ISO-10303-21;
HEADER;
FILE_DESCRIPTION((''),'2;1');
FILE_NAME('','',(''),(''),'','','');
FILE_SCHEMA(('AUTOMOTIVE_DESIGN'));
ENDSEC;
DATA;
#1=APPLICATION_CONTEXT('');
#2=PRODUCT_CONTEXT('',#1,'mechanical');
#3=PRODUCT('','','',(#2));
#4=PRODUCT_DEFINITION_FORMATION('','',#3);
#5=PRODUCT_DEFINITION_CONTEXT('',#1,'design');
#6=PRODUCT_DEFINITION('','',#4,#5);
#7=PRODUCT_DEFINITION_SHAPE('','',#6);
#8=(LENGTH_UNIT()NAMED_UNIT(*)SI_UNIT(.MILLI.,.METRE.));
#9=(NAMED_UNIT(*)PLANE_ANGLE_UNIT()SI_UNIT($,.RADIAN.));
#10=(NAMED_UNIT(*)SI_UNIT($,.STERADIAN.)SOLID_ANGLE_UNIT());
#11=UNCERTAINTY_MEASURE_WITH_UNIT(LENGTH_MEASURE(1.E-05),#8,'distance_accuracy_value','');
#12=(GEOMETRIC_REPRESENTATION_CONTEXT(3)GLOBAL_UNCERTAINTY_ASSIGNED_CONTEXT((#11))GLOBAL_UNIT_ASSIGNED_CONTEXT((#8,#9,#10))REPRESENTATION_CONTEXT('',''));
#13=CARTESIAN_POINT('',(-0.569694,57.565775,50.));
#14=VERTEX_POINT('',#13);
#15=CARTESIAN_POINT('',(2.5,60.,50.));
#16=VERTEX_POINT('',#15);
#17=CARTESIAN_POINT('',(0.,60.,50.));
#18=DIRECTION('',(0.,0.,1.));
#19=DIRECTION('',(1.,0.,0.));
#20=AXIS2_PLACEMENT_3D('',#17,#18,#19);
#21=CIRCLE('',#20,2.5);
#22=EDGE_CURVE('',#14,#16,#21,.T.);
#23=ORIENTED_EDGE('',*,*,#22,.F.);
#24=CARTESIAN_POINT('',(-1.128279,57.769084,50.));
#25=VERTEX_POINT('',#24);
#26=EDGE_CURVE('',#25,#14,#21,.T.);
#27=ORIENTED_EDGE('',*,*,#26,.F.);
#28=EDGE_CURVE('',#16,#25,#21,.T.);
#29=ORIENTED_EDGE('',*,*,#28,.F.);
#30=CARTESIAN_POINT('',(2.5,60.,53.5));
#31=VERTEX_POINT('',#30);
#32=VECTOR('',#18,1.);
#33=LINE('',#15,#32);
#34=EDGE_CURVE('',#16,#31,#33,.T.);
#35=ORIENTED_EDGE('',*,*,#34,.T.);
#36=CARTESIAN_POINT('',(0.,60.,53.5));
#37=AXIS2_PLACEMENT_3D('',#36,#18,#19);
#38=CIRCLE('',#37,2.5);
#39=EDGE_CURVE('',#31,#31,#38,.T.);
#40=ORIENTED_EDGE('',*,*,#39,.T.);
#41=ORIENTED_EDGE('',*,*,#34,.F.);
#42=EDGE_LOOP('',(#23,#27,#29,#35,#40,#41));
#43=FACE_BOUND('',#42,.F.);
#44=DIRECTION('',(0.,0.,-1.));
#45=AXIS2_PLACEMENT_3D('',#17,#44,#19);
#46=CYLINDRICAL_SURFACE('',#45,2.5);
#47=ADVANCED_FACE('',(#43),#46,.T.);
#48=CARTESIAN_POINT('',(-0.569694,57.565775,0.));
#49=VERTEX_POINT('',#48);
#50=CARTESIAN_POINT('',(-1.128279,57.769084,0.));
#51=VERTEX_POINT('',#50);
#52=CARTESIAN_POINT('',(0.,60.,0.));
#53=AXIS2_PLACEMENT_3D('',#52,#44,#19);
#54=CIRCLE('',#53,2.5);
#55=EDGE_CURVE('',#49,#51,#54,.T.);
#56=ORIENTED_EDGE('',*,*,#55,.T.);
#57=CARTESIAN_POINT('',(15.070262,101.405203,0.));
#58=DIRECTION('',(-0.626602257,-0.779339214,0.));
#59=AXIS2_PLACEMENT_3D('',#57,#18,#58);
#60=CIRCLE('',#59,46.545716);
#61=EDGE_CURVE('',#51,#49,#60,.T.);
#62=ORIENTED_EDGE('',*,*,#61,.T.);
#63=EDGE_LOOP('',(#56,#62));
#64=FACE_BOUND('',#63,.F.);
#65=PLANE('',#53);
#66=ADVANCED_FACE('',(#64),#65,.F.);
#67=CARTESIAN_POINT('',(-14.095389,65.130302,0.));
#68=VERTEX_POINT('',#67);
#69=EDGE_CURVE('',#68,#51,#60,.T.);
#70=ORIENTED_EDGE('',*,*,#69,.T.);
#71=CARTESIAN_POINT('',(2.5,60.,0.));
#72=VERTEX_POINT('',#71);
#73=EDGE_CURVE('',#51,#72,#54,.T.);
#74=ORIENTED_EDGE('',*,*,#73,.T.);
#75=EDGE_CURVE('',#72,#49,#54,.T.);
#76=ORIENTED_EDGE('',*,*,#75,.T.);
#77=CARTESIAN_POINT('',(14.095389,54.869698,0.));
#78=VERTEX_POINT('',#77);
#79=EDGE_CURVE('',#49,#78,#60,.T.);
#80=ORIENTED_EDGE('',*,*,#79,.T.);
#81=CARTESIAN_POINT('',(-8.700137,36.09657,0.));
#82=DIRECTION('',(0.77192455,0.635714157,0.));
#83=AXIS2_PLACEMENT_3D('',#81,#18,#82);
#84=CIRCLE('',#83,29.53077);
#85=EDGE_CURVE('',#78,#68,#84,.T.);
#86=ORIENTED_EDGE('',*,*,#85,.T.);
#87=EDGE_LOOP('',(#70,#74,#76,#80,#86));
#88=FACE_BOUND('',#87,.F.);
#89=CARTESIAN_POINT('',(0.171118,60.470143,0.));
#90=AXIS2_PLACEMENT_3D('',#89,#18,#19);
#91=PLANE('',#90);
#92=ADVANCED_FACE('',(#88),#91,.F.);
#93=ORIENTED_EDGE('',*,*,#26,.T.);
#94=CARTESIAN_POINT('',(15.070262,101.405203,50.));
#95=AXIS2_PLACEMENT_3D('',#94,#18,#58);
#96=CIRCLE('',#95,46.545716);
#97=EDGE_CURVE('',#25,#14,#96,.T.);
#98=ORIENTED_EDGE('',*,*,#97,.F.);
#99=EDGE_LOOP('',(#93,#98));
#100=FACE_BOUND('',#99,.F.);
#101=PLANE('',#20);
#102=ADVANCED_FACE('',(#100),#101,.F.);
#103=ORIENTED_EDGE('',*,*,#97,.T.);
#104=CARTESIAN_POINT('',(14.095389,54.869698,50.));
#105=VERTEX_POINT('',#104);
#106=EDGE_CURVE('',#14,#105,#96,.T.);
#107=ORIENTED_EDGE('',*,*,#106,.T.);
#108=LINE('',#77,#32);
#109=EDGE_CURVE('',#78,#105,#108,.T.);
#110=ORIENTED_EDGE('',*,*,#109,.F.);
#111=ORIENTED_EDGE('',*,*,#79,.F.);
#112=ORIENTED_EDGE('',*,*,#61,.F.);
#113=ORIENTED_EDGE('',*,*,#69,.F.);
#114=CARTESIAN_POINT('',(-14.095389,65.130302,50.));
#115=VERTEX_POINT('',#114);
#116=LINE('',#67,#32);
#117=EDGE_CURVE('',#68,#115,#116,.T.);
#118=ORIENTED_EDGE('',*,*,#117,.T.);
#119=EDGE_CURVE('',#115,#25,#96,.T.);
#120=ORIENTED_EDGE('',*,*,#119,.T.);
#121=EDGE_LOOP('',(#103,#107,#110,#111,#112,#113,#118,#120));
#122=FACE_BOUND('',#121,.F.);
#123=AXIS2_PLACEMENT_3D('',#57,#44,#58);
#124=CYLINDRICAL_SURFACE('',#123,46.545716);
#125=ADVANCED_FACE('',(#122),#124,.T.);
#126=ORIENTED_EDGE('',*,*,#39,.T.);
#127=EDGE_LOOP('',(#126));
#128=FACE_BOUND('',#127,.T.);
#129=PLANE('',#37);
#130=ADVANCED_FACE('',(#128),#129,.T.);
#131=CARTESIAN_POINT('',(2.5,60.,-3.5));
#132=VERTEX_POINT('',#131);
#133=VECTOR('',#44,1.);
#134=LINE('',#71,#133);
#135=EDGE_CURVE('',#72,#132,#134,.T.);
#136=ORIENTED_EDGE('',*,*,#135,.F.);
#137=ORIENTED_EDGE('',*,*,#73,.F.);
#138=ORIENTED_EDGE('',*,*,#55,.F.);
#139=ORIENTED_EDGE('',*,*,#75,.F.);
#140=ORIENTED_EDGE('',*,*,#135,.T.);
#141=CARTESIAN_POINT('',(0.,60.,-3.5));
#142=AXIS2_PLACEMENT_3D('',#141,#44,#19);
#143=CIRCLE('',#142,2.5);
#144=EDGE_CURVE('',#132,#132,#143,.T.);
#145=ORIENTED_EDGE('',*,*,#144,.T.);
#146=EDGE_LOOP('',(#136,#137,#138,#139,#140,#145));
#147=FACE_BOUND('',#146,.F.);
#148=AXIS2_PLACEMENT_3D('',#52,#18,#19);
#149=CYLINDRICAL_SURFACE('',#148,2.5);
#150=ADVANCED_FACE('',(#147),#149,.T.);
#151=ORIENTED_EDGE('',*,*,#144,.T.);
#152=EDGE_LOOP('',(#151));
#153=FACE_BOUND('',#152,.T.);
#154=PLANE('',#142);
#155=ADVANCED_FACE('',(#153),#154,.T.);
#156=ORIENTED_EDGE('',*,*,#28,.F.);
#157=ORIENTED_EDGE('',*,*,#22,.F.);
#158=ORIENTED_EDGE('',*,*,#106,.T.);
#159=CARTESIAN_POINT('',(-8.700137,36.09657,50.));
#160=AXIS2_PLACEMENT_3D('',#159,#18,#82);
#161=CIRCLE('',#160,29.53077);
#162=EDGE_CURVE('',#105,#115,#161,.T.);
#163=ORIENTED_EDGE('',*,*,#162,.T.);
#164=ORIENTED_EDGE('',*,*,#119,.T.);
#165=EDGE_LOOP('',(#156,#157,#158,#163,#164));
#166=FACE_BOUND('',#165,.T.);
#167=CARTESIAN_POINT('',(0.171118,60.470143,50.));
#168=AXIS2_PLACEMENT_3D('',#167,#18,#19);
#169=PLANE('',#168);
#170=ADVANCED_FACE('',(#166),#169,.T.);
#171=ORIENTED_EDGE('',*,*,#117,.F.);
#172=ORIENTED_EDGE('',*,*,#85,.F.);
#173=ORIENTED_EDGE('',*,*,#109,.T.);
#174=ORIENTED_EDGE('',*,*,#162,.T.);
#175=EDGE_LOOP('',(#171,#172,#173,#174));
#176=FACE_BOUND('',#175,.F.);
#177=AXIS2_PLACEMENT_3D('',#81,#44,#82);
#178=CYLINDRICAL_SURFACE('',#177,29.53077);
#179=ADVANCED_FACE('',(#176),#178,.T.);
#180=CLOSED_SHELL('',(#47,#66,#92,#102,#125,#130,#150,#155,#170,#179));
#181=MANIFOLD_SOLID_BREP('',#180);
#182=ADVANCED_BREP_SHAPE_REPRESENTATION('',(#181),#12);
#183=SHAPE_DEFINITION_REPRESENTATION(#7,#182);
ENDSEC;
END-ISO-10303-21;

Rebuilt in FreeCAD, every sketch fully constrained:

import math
import FreeCAD as App
import Part
import Sketcher
from FreeCAD import Vector
Q = App.Units.Quantity

doc = App.newDocument("Part")
params = doc.addObject("Spreadsheet::Sheet", "Params")
for row, (alias, value) in enumerate([
    ("pad1_length", "50 mm"),
    ("sketch2_diameter", "5 mm"),
    ("pad2_length", "3.5 mm"),
    ("sketch3_diameter", "5 mm"),
    ("pad3_length", "3.5 mm"),
], start=1):
    params.set(f"A{row}", alias)
    params.set(f"B{row}", "=" + value)
    params.setAlias(f"B{row}", alias)

body = doc.addObject("PartDesign::Body", "Body")

# Sketch on XY plane
sketch1 = body.newObject("Sketcher::SketchObject", "Sketch")
sketch1.AttachmentSupport = (doc.getObject("XY_Plane"), [""])
sketch1.MapMode = "FlatFace"
sketch1.addGeometry(Part.ArcOfCircle(Part.Circle(Vector(-9, 36, 0), Vector(0, 0, 1), 30), math.radians(39), math.radians(101)), False)
sketch1.addGeometry(Part.ArcOfCircle(Part.Circle(Vector(15, 101, 0), Vector(0, 0, 1), 47), math.radians(-129), math.radians(-91)), False)
sketch1.addConstraint(Sketcher.Constraint("Coincident", 0, 1, 1, 2))
sketch1.addConstraint(Sketcher.Constraint("Coincident", 1, 1, 0, 2))
sketch1.addConstraint(Sketcher.Constraint("Radius", 0, Q("29.53077 mm")))
sketch1.addConstraint(Sketcher.Constraint("Radius", 1, Q("46.545716 mm")))
sketch1.addConstraint(Sketcher.Constraint("DistanceY", -1, 1, 1, 1, Q("65.130302 mm")))
sketch1.addConstraint(Sketcher.Constraint("DistanceX", 0, 3, 1, 3, Q("23.770399 mm")))
sketch1.addConstraint(Sketcher.Constraint("DistanceY", 1, 1, 1, 3, Q("36.274901 mm")))
sketch1.addConstraint(Sketcher.Constraint("DistanceX", -1, 1, 1, 3, Q("15.070262 mm")))
pad1 = body.newObject("PartDesign::Pad", "Pad")
pad1.Profile = sketch1
pad1.setExpression("Length", "Params.pad1_length")

# Sketch on XY plane
sketch2 = body.newObject("Sketcher::SketchObject", "Sketch001")
sketch2.AttachmentSupport = (doc.getObject("XY_Plane"), [""])
sketch2.MapMode = "FlatFace"
sketch2.AttachmentOffset = App.Placement(Vector(0, 0, 50), App.Rotation())
sketch2.addGeometry(Part.Circle(Vector(0, 60, 0), Vector(0, 0, 1), 2.5), False)
sketch2.addConstraint(Sketcher.Constraint("PointOnObject", 0, 3, -2))
sketch2.addConstraint(Sketcher.Constraint("Diameter", 0, Q("5 mm")))
sketch2.addConstraint(Sketcher.Constraint("DistanceY", -1, 1, 0, 3, Q("60 mm")))
sketch2.setExpression("Constraints[1]", "Params.sketch2_diameter")
pad2 = body.newObject("PartDesign::Pad", "Pad001")
pad2.Profile = sketch2
pad2.setExpression("Length", "Params.pad2_length")

# Sketch on XY plane
sketch3 = body.newObject("Sketcher::SketchObject", "Sketch002")
sketch3.AttachmentSupport = (doc.getObject("XY_Plane"), [""])
sketch3.MapMode = "FlatFace"
sketch3.addGeometry(Part.Circle(Vector(0, 60, 0), Vector(0, 0, 1), 2.5), False)
sketch3.addConstraint(Sketcher.Constraint("PointOnObject", 0, 3, -2))
sketch3.addConstraint(Sketcher.Constraint("Diameter", 0, Q("5 mm")))
sketch3.addConstraint(Sketcher.Constraint("DistanceY", -1, 1, 0, 3, Q("60 mm")))
sketch3.setExpression("Constraints[1]", "Params.sketch3_diameter")
pad3 = body.newObject("PartDesign::Pad", "Pad002")
pad3.Profile = sketch3
pad3.setExpression("Length", "Params.pad3_length")
pad3.Reversed = True

doc.recompute()
